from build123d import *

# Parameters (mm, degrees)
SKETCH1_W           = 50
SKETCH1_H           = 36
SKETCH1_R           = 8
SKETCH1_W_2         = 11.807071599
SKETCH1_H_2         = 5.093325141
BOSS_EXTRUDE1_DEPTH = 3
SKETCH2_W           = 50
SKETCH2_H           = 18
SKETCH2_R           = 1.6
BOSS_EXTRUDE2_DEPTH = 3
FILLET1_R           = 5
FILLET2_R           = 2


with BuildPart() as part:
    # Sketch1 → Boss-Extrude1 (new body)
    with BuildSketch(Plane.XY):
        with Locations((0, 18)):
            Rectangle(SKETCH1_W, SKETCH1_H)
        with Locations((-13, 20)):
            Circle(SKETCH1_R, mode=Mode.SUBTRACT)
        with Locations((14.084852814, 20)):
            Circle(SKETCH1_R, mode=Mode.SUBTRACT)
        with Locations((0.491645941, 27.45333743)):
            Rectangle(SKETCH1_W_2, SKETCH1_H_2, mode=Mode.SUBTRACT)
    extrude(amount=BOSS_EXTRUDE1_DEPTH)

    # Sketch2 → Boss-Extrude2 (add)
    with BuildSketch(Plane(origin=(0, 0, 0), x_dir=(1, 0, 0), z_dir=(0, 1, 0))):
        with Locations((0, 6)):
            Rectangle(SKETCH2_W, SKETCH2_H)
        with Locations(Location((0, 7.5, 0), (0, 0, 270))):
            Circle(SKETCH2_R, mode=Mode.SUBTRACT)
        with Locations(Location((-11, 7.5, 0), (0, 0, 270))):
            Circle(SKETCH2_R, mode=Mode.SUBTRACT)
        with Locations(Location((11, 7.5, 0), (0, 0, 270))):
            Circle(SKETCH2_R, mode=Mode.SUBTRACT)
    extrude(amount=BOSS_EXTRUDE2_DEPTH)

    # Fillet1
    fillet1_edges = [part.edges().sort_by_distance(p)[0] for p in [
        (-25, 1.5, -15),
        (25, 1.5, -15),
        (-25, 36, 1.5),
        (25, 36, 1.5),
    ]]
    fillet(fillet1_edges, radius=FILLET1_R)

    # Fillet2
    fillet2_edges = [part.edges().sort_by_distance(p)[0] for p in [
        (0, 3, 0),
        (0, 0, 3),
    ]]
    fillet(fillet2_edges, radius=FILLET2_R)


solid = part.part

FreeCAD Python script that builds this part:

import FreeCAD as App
import Part
import Sketcher

V = App.Vector


def edges_at(feature, points):
    """Names of the edges that pass closest to the given points."""
    edges = feature.Shape.Edges
    near = lambda p: min(range(len(edges)), key=lambda i: edges[i].distToShape(Part.Vertex(*p))[0])
    return sorted({f"Edge{near(p) + 1}" for p in points})

doc = App.newDocument("Part")
body = doc.addObject("PartDesign::Body", "Body")

# Sketch on XY plane
sketch1 = body.newObject("Sketcher::SketchObject", "Sketch")
sketch1.AttachmentSupport = (doc.getObject("XY_Plane"), [""])
sketch1.MapMode = "FlatFace"
sketch1.addGeometry([
    Part.LineSegment(V(-25, 36, 0), V(-25, 0, 0)),  # 0
    Part.LineSegment(V(-25, 0, 0), V(25, 0, 0)),  # 1
    Part.LineSegment(V(25, 0, 0), V(25, 36, 0)),  # 2
    Part.LineSegment(V(25, 36, 0), V(-25, 36, 0)),  # 3
    Part.Circle(V(-13, 20, 0), V(0, 0, 1), 8),  # 4
    Part.Circle(V(14, 20, 0), V(0, 0, 1), 8),  # 5
    Part.LineSegment(V(6, 25, 0), V(-5, 25, 0)),  # 6
    Part.LineSegment(V(-5, 25, 0), V(-5, 30, 0)),  # 7
    Part.LineSegment(V(-5, 30, 0), V(6, 30, 0)),  # 8
    Part.LineSegment(V(6, 30, 0), V(6, 25, 0)),  # 9
], False)
sketch1.addConstraint([
    Sketcher.Constraint("Coincident", 0, 2, 1, 1),
    Sketcher.Constraint("Coincident", 1, 2, 2, 1),
    Sketcher.Constraint("Coincident", 2, 2, 3, 1),
    Sketcher.Constraint("Coincident", 3, 2, 0, 1),
    Sketcher.Constraint("Coincident", 6, 2, 7, 1),
    Sketcher.Constraint("Coincident", 7, 2, 8, 1),
    Sketcher.Constraint("Coincident", 8, 2, 9, 1),
    Sketcher.Constraint("Coincident", 9, 2, 6, 1),
    Sketcher.Constraint("Vertical", 0),
    Sketcher.Constraint("Horizontal", 1),
    Sketcher.Constraint("Vertical", 2),
    Sketcher.Constraint("Horizontal", 3),
    Sketcher.Constraint("Horizontal", 6),
    Sketcher.Constraint("Vertical", 7),
    Sketcher.Constraint("Horizontal", 8),
    Sketcher.Constraint("Vertical", 9),
    Sketcher.Constraint("Equal", 4, 5),
    Sketcher.Constraint("Symmetric", 0, 2, 1, 2, -1, 1),
    Sketcher.Constraint("Horizontal", 4, 3, 5, 3),
    Sketcher.Constraint("Diameter", 4, 16.0),
    Sketcher.Constraint("DistanceX", 1, 1, 1, 2, 50.0),
    Sketcher.Constraint("DistanceY", 0, 2, 0, 1, 36.0),
    Sketcher.Constraint("DistanceX", 4, 3, -1, 1, 13.0),
    Sketcher.Constraint("DistanceY", -1, 1, 4, 3, 20.0),
    Sketcher.Constraint("DistanceY", -1, 1, 7, 2, 30.0),
    Sketcher.Constraint("DistanceX", 6, 2, 6, 1, 11.807072),
    Sketcher.Constraint("DistanceY", 7, 1, 7, 2, 5.093325),
    Sketcher.Constraint("DistanceX", 6, 2, -1, 1, 5.41189),
    Sketcher.Constraint("DistanceX", 8, 2, 5, 3, 7.689671),
])
pad1 = body.newObject("PartDesign::Pad", "Pad")
pad1.Profile = sketch1
pad1.Length = 3

# Sketch on XZ plane
sketch2 = body.newObject("Sketcher::SketchObject", "Sketch001")
sketch2.AttachmentSupport = (doc.getObject("XZ_Plane"), [""])
sketch2.MapMode = "FlatFace"
sketch2.addGeometry([
    Part.LineSegment(V(-25, -15, 0), V(-25, 3, 0)),  # 0
    Part.LineSegment(V(-25, 3, 0), V(25, 3, 0)),  # 1
    Part.LineSegment(V(25, 3, 0), V(25, -15, 0)),  # 2
    Part.LineSegment(V(25, -15, 0), V(-25, -15, 0)),  # 3
    Part.Circle(V(-11, -7.5, 0), V(0, 0, 1), 1.6),  # 4
    Part.Circle(V(0, -7.5, 0), V(0, 0, 1), 1.6),  # 5
    Part.Circle(V(11, -7.5, 0), V(0, 0, 1), 1.6),  # 6
], False)
sketch2.addConstraint([
    Sketcher.Constraint("Coincident", 0, 2, 1, 1),
    Sketcher.Constraint("Coincident", 1, 2, 2, 1),
    Sketcher.Constraint("Coincident", 2, 2, 3, 1),
    Sketcher.Constraint("Coincident", 3, 2, 0, 1),
    Sketcher.Constraint("Vertical", 0),
    Sketcher.Constraint("Horizontal", 1),
    Sketcher.Constraint("Vertical", 2),
    Sketcher.Constraint("Horizontal", 3),
    Sketcher.Constraint("Equal", 4, 5),
    Sketcher.Constraint("Equal", 5, 6),
    Sketcher.Constraint("Symmetric", 4, 3, 6, 3, -2),
    Sketcher.Constraint("PointOnObject", 5, 3, -2),
    Sketcher.Constraint("Horizontal", 4, 3, 5, 3),
    Sketcher.Constraint("Diameter", 4, 3.2),
    Sketcher.Constraint("DistanceX", 1, 1, 1, 2, 50.0),
    Sketcher.Constraint("DistanceY", 0, 1, 0, 2, 18.0),
    Sketcher.Constraint("DistanceX", 4, 3, -1, 1, 11.0),
    Sketcher.Constraint("DistanceX", 0, 2, -1, 1, 25.0),
    Sketcher.Constraint("DistanceY", -1, 1, 0, 2, 3.0),
    Sketcher.Constraint("DistanceY", 4, 3, -1, 1, 7.5),
])
pad2 = body.newObject("PartDesign::Pad", "Pad001")
pad2.Profile = sketch2
pad2.Length = 3
pad2.Reversed = True
doc.recompute()

fillet = body.newObject("PartDesign::Fillet", "Fillet")
fillet.Base = (pad2, edges_at(pad2, [
    (-25, 1.5, -15),
    (25, 1.5, -15),
    (-25, 36, 1.5),
    (25, 36, 1.5),
]))
fillet.Radius = 5
doc.recompute()

fillet2 = body.newObject("PartDesign::Fillet", "Fillet001")
fillet2.Base = (fillet, edges_at(fillet, [(0, 3, 0), (0, 0, 3)]))
fillet2.Radius = 2

doc.recompute()
